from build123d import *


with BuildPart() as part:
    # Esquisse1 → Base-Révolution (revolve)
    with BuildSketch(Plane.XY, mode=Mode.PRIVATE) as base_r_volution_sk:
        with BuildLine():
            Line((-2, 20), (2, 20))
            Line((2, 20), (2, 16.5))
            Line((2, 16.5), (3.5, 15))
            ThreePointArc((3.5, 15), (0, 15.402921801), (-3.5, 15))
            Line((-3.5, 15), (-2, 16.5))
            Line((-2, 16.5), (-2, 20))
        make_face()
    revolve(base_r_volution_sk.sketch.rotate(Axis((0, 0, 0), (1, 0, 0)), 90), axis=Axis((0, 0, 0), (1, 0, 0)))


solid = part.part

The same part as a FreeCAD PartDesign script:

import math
import FreeCAD as App
import Part
import Sketcher
from FreeCAD import Vector
Q = App.Units.Quantity

doc = App.newDocument("Part")
body = doc.addObject("PartDesign::Body", "Body")

# Sketch on XY plane
sketch1 = body.newObject("Sketcher::SketchObject", "Sketch")
sketch1.AttachmentSupport = (doc.getObject("XY_Plane"), [""])
sketch1.MapMode = "FlatFace"
sketch1.addGeometry(Part.LineSegment(Vector(2, 20, 0), Vector(-2, 20, 0)), False)
sketch1.addGeometry(Part.LineSegment(Vector(-2, 20, 0), Vector(-2, 16.5, 0)), False)
sketch1.addGeometry(Part.LineSegment(Vector(-2, 16.5, 0), Vector(-3.5, 15, 0)), False)
sketch1.addGeometry(Part.ArcOfCircle(Part.Circle(Vector(0, 0, 0), Vector(0, 0, 1), 15.402922), math.radians(76.865978), math.radians(103.134022)), False)
sketch1.addGeometry(Part.LineSegment(Vector(3.5, 15, 0), Vector(2, 16.5, 0)), False)
sketch1.addGeometry(Part.LineSegment(Vector(2, 16.5, 0), Vector(2, 20, 0)), False)
sketch1.addConstraint(Sketcher.Constraint("Coincident", 0, 2, 1, 1))
sketch1.addConstraint(Sketcher.Constraint("Coincident", 1, 2, 2, 1))
sketch1.addConstraint(Sketcher.Constraint("Coincident", 2, 2, 3, 2))
sketch1.addConstraint(Sketcher.Constraint("Coincident", 3, 1, 4, 1))
sketch1.addConstraint(Sketcher.Constraint("Coincident", 4, 2, 5, 1))
sketch1.addConstraint(Sketcher.Constraint("Coincident", 5, 2, 0, 1))
sketch1.addConstraint(Sketcher.Constraint("Horizontal", 0))
sketch1.addConstraint(Sketcher.Constraint("Vertical", 1))
sketch1.addConstraint(Sketcher.Constraint("Vertical", 5))
sketch1.addConstraint(Sketcher.Constraint("Coincident", 3, 3, -1, 1))
sketch1.addConstraint(Sketcher.Constraint("Symmetric", 1, 2, 4, 2, -2))
sketch1.addConstraint(Sketcher.Constraint("Perpendicular", 2, 4))
sketch1.addConstraint(Sketcher.Constraint("Horizontal", 2, 2, 3, 1))
sketch1.addConstraint(Sketcher.Constraint("DistanceX", 0, 2, 0, 1, Q("4 mm")))
sketch1.addConstraint(Sketcher.Constraint("DistanceY", 1, 2, 1, 1, Q("3.5 mm")))
sketch1.addConstraint(Sketcher.Constraint("DistanceY", -1, 1, 0, 2, Q("20 mm")))
sketch1.addConstraint(Sketcher.Constraint("DistanceY", -1, 1, 2, 2, Q("15 mm")))
revolution = body.newObject("PartDesign::Revolution", "Revolution")
revolution.Profile = sketch1
revolution.ReferenceAxis = (sketch1, ["H_Axis"])
revolution.Angle = 360

doc.recompute()
